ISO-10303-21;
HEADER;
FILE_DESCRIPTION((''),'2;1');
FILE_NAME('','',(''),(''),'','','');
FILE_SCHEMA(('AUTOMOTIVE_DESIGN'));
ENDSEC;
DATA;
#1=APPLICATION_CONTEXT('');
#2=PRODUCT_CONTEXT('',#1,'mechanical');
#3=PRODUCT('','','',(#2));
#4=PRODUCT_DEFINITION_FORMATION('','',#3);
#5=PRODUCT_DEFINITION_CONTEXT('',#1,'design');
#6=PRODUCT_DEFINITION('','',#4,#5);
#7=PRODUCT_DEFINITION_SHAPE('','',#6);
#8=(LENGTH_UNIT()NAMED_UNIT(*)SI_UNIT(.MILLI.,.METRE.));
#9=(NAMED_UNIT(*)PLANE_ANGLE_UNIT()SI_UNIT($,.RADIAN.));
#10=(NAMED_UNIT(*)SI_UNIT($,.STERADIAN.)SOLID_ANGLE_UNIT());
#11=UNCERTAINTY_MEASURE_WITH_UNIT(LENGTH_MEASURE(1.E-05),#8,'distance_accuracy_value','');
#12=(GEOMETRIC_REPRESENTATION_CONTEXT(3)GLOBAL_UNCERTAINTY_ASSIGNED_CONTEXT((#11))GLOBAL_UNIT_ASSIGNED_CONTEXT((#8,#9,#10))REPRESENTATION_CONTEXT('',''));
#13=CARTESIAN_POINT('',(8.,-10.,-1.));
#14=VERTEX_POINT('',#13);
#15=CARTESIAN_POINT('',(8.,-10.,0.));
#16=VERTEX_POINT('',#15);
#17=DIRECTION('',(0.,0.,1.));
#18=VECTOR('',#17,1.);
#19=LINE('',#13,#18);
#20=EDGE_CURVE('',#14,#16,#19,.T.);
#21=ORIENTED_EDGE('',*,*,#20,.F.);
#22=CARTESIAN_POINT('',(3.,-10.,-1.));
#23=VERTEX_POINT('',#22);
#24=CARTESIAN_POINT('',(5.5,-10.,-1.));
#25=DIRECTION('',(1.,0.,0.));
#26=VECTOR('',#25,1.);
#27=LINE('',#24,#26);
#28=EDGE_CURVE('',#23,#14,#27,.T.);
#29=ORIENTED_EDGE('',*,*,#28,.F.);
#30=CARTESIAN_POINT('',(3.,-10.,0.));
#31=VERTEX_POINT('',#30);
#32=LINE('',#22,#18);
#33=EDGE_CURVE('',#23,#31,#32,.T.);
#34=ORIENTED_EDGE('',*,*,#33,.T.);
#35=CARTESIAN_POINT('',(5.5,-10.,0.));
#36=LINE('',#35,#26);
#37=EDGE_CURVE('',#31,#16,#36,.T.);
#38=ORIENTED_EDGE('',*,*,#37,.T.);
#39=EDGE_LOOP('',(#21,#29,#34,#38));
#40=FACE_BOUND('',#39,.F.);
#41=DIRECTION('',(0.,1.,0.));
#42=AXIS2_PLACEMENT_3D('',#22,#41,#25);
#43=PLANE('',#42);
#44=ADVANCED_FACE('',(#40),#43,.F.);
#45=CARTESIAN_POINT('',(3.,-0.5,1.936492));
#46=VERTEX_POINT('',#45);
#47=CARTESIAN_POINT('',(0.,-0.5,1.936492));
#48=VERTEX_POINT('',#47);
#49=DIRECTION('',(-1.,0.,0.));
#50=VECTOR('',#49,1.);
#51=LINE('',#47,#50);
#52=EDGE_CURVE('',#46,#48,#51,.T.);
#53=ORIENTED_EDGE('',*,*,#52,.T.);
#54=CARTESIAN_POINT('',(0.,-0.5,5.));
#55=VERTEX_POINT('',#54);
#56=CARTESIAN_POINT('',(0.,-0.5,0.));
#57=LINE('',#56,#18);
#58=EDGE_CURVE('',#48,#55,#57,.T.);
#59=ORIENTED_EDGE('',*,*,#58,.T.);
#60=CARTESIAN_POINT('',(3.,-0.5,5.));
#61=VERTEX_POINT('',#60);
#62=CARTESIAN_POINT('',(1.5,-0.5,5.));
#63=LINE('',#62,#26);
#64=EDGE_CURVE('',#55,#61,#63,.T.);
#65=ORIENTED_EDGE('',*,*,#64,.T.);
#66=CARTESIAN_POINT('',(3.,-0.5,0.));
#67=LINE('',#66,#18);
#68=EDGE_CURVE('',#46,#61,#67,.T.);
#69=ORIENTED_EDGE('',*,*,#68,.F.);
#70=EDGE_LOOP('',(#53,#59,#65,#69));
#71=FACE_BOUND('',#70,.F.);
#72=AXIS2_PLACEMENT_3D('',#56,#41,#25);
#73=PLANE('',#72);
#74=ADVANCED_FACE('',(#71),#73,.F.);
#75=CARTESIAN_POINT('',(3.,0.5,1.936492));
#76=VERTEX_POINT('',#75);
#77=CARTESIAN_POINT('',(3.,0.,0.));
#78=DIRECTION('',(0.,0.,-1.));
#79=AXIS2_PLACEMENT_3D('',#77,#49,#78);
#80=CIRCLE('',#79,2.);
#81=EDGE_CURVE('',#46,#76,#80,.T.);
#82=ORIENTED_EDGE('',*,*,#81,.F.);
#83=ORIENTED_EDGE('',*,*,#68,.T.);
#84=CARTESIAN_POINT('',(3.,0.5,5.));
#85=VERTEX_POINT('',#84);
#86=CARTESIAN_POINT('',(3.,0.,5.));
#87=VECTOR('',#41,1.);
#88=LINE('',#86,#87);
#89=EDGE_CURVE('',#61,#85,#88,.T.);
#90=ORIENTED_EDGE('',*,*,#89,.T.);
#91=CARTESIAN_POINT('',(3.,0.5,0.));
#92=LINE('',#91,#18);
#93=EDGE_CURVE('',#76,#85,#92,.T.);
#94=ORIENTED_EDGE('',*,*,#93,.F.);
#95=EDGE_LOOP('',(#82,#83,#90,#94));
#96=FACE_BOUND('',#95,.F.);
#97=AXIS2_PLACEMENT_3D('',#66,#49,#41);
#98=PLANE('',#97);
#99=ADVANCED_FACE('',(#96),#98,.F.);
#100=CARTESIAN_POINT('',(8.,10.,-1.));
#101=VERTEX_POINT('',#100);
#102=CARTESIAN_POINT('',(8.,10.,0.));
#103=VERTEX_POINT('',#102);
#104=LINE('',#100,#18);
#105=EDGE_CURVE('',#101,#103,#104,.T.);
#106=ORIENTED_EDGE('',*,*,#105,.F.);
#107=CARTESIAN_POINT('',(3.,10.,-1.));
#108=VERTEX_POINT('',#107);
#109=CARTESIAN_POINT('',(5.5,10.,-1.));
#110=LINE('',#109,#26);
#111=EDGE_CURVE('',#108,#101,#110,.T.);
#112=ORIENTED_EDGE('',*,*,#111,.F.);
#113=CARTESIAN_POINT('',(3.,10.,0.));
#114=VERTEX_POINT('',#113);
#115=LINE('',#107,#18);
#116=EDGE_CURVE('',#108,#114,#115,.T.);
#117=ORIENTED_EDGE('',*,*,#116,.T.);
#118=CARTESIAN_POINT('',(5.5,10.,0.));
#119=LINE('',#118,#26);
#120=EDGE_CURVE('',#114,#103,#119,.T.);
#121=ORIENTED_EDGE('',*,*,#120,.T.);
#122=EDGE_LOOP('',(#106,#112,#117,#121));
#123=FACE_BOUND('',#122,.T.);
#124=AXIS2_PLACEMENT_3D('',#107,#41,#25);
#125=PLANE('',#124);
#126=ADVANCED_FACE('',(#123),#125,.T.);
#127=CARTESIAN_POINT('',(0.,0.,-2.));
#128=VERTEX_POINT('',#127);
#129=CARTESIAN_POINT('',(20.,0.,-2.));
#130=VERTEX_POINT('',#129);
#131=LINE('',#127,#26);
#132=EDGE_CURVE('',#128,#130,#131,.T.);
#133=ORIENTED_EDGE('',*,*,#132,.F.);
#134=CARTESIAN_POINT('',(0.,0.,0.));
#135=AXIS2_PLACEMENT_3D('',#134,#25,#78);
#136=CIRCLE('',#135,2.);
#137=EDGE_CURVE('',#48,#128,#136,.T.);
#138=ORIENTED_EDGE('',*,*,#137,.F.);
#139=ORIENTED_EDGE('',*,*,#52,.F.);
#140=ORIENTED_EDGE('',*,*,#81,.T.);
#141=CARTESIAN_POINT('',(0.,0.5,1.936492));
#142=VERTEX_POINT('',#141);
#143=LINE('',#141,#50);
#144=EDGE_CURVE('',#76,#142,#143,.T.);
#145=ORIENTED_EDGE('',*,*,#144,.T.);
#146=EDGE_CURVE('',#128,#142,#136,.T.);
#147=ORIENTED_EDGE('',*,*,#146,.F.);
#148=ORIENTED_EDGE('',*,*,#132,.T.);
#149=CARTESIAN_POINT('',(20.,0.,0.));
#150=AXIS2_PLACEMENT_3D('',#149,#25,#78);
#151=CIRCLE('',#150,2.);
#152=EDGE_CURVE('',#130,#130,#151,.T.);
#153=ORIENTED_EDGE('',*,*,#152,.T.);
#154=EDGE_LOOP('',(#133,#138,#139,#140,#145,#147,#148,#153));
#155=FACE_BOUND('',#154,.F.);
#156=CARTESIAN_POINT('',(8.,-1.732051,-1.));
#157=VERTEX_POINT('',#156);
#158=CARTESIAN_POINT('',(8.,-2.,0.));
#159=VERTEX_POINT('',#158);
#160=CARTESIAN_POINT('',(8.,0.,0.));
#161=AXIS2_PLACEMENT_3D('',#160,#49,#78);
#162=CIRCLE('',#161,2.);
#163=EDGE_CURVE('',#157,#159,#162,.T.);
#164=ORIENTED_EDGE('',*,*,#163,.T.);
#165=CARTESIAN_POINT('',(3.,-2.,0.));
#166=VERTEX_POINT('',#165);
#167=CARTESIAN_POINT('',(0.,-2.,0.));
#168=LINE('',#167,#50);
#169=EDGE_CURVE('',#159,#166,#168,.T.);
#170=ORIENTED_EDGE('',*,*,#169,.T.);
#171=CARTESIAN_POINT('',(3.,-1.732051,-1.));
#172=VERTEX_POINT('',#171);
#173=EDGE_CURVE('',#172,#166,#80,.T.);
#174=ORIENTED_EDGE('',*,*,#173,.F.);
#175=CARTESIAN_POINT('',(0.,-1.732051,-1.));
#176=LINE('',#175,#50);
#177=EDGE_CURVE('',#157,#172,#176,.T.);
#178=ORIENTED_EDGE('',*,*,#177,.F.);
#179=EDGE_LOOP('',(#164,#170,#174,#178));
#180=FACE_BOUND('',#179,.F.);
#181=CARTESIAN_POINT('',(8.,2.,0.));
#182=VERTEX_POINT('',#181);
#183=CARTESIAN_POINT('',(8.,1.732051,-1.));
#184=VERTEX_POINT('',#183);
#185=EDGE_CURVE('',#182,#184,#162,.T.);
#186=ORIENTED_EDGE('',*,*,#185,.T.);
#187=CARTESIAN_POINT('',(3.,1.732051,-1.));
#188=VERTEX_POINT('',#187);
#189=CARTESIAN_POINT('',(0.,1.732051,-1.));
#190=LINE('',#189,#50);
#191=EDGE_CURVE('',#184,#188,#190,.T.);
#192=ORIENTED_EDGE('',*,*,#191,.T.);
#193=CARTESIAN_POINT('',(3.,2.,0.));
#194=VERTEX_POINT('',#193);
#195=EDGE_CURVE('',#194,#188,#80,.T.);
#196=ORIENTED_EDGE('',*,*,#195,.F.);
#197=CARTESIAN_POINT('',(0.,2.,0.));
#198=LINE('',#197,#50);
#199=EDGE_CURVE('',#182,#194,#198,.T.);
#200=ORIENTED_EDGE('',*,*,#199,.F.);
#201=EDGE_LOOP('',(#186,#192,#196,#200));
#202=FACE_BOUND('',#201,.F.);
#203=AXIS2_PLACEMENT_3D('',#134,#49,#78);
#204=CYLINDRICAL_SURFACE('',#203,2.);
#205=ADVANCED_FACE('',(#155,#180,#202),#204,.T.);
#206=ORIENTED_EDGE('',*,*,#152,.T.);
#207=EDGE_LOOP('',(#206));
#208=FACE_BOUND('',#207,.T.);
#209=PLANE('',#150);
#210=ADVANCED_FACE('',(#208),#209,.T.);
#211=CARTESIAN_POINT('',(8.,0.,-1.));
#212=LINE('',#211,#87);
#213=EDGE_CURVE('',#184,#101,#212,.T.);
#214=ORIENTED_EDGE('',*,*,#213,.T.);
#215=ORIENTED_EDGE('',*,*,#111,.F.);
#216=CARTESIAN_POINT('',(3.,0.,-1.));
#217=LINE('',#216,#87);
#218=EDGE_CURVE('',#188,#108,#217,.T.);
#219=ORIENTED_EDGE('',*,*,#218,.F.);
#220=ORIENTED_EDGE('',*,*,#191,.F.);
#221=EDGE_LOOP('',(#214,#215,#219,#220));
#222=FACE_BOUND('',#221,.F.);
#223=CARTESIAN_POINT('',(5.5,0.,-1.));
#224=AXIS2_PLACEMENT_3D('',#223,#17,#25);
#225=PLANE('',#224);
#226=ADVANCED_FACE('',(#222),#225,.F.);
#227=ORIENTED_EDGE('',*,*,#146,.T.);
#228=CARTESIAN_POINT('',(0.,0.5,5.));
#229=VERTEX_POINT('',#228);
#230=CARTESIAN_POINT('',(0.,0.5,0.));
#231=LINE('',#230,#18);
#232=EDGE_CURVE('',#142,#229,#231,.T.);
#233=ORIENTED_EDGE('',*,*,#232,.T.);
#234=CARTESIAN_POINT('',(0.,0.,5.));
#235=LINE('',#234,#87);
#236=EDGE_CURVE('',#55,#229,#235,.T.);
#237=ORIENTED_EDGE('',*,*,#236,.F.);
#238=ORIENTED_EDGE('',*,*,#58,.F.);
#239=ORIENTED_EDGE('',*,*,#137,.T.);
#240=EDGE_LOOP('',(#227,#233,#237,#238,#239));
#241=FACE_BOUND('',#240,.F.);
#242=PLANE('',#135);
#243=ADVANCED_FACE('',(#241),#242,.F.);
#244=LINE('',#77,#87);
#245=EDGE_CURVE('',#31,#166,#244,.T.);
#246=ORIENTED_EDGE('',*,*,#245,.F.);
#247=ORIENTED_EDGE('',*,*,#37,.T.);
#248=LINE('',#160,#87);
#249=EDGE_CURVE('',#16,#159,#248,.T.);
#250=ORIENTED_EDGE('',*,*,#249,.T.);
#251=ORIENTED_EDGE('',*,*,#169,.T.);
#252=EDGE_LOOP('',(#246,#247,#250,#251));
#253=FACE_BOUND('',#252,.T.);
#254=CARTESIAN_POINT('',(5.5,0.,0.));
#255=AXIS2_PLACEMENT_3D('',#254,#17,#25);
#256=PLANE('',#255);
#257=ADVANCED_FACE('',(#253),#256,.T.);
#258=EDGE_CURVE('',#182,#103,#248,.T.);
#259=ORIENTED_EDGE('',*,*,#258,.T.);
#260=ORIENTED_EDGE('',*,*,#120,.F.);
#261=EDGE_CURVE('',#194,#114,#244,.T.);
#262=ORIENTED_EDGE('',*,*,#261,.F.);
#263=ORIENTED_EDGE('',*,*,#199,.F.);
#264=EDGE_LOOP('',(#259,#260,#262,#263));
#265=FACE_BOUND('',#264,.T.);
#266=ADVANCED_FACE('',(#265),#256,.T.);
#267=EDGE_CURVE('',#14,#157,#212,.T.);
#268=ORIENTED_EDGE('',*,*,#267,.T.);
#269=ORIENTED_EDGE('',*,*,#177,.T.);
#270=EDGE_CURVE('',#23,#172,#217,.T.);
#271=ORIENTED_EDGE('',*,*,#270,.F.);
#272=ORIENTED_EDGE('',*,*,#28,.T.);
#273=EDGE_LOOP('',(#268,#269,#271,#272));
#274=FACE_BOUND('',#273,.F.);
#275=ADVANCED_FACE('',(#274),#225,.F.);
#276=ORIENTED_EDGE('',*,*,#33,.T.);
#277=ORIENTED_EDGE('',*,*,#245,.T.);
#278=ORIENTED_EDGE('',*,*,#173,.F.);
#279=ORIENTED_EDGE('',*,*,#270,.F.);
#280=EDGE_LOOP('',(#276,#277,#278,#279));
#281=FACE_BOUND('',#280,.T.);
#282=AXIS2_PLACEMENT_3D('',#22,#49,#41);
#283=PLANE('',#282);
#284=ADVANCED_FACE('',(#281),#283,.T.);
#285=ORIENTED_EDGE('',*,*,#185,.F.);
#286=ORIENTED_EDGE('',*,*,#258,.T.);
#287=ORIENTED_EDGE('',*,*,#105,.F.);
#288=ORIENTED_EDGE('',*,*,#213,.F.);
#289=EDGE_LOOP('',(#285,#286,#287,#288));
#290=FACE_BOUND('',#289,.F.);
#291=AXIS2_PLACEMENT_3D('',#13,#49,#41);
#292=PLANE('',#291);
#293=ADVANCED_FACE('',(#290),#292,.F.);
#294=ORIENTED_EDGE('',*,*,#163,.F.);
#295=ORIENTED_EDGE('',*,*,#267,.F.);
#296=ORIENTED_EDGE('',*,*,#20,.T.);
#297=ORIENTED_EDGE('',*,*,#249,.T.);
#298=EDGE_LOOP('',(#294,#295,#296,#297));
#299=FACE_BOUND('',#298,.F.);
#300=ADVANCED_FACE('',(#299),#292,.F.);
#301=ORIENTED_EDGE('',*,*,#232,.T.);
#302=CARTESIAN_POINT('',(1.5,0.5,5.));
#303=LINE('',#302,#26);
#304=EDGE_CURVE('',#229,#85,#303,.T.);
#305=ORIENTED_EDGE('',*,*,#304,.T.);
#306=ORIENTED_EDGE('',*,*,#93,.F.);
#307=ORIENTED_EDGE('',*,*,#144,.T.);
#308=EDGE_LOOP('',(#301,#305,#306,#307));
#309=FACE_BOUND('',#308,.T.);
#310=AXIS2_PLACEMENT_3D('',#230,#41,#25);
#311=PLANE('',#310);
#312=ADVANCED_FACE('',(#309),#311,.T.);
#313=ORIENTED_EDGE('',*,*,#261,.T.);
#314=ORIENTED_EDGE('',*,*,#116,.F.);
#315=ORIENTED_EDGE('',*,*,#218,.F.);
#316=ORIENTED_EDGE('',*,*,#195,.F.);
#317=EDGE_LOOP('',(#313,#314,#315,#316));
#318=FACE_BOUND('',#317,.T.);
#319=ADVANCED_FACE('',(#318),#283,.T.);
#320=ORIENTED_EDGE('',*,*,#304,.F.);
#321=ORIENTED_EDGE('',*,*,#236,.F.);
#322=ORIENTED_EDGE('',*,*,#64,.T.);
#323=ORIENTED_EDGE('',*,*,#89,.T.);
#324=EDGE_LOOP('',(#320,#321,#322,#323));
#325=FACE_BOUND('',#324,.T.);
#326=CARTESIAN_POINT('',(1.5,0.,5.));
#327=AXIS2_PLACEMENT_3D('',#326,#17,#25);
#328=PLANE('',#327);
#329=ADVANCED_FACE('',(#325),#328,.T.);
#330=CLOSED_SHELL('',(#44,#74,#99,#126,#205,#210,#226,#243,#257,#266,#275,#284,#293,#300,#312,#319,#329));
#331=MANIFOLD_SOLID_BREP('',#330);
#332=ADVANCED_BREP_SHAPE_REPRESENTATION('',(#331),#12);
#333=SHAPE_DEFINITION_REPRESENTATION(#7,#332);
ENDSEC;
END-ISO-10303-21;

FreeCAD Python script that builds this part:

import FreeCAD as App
import Part
import Sketcher
Q = App.Units.Quantity

doc = App.newDocument("Part")
body = doc.addObject("PartDesign::Body", "Body")

# Sketch on XY plane
sketch1 = doc.addObject("Sketcher::SketchObject", "Sketch")
body.addObject(sketch1)
sketch1.AttachmentSupport = (doc.XY_Plane, [""])
sketch1.MapMode = "FlatFace"
sketch1.AttachmentOffset = App.Placement(App.Vector(0, 0, -1), App.Rotation())
sketch1.addGeometry(Part.LineSegment(App.Vector(3, 10, 0), App.Vector(3, -10, 0)), False)
sketch1.addGeometry(Part.LineSegment(App.Vector(3, -10, 0), App.Vector(8, -10, 0)), False)
sketch1.addGeometry(Part.LineSegment(App.Vector(8, -10, 0), App.Vector(8, 10, 0)), False)
sketch1.addGeometry(Part.LineSegment(App.Vector(8, 10, 0), App.Vector(3, 10, 0)), False)
sketch1.addConstraint(Sketcher.Constraint("Coincident", 0, 2, 1, 1))
sketch1.addConstraint(Sketcher.Constraint("Coincident", 1, 2, 2, 1))
sketch1.addConstraint(Sketcher.Constraint("Coincident", 2, 2, 3, 1))
sketch1.addConstraint(Sketcher.Constraint("Coincident", 3, 2, 0, 1))
sketch1.addConstraint(Sketcher.Constraint("Vertical", 0))
sketch1.addConstraint(Sketcher.Constraint("Horizontal", 1))
sketch1.addConstraint(Sketcher.Constraint("Vertical", 2))
sketch1.addConstraint(Sketcher.Constraint("Horizontal", 3))
sketch1.addConstraint(Sketcher.Constraint("DistanceX", 1, 1, 1, 2, Q("5 mm")))
sketch1.addConstraint(Sketcher.Constraint("DistanceY", 0, 2, 0, 1, Q("20 mm")))
sketch1.addConstraint(Sketcher.Constraint("DistanceX", -1, 1, 0, 2, Q("3 mm")))
sketch1.addConstraint(Sketcher.Constraint("DistanceY", 0, 2, -1, 1, Q("10 mm")))
pad1 = doc.addObject("PartDesign::Pad", "Pad")
body.addObject(pad1)
pad1.Profile = sketch1
pad1.Length = 1
body2 = doc.addObject("PartDesign::Body", "Body001")

# Sketch on YZ plane
sketch2 = doc.addObject("Sketcher::SketchObject", "Sketch001")
body2.addObject(sketch2)
sketch2.AttachmentSupport = (doc.getObject("YZ_Plane001"), [""])
sketch2.MapMode = "FlatFace"
sketch2.addGeometry(Part.Circle(App.Vector(0, 0, 0), App.Vector(0, 0, 1), 2), False)
sketch2.addConstraint(Sketcher.Constraint("Coincident", 0, 3, -1, 1))
sketch2.addConstraint(Sketcher.Constraint("Diameter", 0, Q("4 mm")))
pad2 = doc.addObject("PartDesign::Pad", "Pad001")
body2.addObject(pad2)
pad2.Profile = sketch2
pad2.Length = 20
doc.recompute()

boolean = doc.addObject("PartDesign::Boolean", "Boolean")
body2.addObject(boolean)
boolean.Type = "Fuse"
boolean.addObjects([body])
body3 = doc.addObject("PartDesign::Body", "Body002")

# Sketch on XY plane
sketch3 = doc.addObject("Sketcher::SketchObject", "Sketch002")
body3.addObject(sketch3)
sketch3.AttachmentSupport = (doc.getObject("XY_Plane002"), [""])
sketch3.MapMode = "FlatFace"
sketch3.addGeometry(Part.LineSegment(App.Vector(0, 0.5, 0), App.Vector(0, -0.5, 0)), False)
sketch3.addGeometry(Part.LineSegment(App.Vector(0, -0.5, 0), App.Vector(3, -0.5, 0)), False)
sketch3.addGeometry(Part.LineSegment(App.Vector(3, -0.5, 0), App.Vector(3, 0.5, 0)), False)
sketch3.addGeometry(Part.LineSegment(App.Vector(3, 0.5, 0), App.Vector(0, 0.5, 0)), False)
sketch3.addConstraint(Sketcher.Constraint("Coincident", 0, 2, 1, 1))
sketch3.addConstraint(Sketcher.Constraint("Coincident", 1, 2, 2, 1))
sketch3.addConstraint(Sketcher.Constraint("Coincident", 2, 2, 3, 1))
sketch3.addConstraint(Sketcher.Constraint("Coincident", 3, 2, 0, 1))
sketch3.addConstraint(Sketcher.Constraint("Vertical", 0))
sketch3.addConstraint(Sketcher.Constraint("Horizontal", 1))
sketch3.addConstraint(Sketcher.Constraint("Vertical", 2))
sketch3.addConstraint(Sketcher.Constraint("Horizontal", 3))
sketch3.addConstraint(Sketcher.Constraint("Symmetric", 0, 2, 3, 2, -1, 1))
sketch3.addConstraint(Sketcher.Constraint("DistanceX", 1, 1, 1, 2, Q("3 mm")))
sketch3.addConstraint(Sketcher.Constraint("DistanceY", 0, 2, 0, 1, Q("1 mm")))
pad3 = doc.addObject("PartDesign::Pad", "Pad002")
body3.addObject(pad3)
pad3.Profile = sketch3
pad3.Length = 5
doc.recompute()

boolean2 = doc.addObject("PartDesign::Boolean", "Boolean001")
body3.addObject(boolean2)
boolean2.Type = "Fuse"
boolean2.addObjects([body2])

doc.recompute()
